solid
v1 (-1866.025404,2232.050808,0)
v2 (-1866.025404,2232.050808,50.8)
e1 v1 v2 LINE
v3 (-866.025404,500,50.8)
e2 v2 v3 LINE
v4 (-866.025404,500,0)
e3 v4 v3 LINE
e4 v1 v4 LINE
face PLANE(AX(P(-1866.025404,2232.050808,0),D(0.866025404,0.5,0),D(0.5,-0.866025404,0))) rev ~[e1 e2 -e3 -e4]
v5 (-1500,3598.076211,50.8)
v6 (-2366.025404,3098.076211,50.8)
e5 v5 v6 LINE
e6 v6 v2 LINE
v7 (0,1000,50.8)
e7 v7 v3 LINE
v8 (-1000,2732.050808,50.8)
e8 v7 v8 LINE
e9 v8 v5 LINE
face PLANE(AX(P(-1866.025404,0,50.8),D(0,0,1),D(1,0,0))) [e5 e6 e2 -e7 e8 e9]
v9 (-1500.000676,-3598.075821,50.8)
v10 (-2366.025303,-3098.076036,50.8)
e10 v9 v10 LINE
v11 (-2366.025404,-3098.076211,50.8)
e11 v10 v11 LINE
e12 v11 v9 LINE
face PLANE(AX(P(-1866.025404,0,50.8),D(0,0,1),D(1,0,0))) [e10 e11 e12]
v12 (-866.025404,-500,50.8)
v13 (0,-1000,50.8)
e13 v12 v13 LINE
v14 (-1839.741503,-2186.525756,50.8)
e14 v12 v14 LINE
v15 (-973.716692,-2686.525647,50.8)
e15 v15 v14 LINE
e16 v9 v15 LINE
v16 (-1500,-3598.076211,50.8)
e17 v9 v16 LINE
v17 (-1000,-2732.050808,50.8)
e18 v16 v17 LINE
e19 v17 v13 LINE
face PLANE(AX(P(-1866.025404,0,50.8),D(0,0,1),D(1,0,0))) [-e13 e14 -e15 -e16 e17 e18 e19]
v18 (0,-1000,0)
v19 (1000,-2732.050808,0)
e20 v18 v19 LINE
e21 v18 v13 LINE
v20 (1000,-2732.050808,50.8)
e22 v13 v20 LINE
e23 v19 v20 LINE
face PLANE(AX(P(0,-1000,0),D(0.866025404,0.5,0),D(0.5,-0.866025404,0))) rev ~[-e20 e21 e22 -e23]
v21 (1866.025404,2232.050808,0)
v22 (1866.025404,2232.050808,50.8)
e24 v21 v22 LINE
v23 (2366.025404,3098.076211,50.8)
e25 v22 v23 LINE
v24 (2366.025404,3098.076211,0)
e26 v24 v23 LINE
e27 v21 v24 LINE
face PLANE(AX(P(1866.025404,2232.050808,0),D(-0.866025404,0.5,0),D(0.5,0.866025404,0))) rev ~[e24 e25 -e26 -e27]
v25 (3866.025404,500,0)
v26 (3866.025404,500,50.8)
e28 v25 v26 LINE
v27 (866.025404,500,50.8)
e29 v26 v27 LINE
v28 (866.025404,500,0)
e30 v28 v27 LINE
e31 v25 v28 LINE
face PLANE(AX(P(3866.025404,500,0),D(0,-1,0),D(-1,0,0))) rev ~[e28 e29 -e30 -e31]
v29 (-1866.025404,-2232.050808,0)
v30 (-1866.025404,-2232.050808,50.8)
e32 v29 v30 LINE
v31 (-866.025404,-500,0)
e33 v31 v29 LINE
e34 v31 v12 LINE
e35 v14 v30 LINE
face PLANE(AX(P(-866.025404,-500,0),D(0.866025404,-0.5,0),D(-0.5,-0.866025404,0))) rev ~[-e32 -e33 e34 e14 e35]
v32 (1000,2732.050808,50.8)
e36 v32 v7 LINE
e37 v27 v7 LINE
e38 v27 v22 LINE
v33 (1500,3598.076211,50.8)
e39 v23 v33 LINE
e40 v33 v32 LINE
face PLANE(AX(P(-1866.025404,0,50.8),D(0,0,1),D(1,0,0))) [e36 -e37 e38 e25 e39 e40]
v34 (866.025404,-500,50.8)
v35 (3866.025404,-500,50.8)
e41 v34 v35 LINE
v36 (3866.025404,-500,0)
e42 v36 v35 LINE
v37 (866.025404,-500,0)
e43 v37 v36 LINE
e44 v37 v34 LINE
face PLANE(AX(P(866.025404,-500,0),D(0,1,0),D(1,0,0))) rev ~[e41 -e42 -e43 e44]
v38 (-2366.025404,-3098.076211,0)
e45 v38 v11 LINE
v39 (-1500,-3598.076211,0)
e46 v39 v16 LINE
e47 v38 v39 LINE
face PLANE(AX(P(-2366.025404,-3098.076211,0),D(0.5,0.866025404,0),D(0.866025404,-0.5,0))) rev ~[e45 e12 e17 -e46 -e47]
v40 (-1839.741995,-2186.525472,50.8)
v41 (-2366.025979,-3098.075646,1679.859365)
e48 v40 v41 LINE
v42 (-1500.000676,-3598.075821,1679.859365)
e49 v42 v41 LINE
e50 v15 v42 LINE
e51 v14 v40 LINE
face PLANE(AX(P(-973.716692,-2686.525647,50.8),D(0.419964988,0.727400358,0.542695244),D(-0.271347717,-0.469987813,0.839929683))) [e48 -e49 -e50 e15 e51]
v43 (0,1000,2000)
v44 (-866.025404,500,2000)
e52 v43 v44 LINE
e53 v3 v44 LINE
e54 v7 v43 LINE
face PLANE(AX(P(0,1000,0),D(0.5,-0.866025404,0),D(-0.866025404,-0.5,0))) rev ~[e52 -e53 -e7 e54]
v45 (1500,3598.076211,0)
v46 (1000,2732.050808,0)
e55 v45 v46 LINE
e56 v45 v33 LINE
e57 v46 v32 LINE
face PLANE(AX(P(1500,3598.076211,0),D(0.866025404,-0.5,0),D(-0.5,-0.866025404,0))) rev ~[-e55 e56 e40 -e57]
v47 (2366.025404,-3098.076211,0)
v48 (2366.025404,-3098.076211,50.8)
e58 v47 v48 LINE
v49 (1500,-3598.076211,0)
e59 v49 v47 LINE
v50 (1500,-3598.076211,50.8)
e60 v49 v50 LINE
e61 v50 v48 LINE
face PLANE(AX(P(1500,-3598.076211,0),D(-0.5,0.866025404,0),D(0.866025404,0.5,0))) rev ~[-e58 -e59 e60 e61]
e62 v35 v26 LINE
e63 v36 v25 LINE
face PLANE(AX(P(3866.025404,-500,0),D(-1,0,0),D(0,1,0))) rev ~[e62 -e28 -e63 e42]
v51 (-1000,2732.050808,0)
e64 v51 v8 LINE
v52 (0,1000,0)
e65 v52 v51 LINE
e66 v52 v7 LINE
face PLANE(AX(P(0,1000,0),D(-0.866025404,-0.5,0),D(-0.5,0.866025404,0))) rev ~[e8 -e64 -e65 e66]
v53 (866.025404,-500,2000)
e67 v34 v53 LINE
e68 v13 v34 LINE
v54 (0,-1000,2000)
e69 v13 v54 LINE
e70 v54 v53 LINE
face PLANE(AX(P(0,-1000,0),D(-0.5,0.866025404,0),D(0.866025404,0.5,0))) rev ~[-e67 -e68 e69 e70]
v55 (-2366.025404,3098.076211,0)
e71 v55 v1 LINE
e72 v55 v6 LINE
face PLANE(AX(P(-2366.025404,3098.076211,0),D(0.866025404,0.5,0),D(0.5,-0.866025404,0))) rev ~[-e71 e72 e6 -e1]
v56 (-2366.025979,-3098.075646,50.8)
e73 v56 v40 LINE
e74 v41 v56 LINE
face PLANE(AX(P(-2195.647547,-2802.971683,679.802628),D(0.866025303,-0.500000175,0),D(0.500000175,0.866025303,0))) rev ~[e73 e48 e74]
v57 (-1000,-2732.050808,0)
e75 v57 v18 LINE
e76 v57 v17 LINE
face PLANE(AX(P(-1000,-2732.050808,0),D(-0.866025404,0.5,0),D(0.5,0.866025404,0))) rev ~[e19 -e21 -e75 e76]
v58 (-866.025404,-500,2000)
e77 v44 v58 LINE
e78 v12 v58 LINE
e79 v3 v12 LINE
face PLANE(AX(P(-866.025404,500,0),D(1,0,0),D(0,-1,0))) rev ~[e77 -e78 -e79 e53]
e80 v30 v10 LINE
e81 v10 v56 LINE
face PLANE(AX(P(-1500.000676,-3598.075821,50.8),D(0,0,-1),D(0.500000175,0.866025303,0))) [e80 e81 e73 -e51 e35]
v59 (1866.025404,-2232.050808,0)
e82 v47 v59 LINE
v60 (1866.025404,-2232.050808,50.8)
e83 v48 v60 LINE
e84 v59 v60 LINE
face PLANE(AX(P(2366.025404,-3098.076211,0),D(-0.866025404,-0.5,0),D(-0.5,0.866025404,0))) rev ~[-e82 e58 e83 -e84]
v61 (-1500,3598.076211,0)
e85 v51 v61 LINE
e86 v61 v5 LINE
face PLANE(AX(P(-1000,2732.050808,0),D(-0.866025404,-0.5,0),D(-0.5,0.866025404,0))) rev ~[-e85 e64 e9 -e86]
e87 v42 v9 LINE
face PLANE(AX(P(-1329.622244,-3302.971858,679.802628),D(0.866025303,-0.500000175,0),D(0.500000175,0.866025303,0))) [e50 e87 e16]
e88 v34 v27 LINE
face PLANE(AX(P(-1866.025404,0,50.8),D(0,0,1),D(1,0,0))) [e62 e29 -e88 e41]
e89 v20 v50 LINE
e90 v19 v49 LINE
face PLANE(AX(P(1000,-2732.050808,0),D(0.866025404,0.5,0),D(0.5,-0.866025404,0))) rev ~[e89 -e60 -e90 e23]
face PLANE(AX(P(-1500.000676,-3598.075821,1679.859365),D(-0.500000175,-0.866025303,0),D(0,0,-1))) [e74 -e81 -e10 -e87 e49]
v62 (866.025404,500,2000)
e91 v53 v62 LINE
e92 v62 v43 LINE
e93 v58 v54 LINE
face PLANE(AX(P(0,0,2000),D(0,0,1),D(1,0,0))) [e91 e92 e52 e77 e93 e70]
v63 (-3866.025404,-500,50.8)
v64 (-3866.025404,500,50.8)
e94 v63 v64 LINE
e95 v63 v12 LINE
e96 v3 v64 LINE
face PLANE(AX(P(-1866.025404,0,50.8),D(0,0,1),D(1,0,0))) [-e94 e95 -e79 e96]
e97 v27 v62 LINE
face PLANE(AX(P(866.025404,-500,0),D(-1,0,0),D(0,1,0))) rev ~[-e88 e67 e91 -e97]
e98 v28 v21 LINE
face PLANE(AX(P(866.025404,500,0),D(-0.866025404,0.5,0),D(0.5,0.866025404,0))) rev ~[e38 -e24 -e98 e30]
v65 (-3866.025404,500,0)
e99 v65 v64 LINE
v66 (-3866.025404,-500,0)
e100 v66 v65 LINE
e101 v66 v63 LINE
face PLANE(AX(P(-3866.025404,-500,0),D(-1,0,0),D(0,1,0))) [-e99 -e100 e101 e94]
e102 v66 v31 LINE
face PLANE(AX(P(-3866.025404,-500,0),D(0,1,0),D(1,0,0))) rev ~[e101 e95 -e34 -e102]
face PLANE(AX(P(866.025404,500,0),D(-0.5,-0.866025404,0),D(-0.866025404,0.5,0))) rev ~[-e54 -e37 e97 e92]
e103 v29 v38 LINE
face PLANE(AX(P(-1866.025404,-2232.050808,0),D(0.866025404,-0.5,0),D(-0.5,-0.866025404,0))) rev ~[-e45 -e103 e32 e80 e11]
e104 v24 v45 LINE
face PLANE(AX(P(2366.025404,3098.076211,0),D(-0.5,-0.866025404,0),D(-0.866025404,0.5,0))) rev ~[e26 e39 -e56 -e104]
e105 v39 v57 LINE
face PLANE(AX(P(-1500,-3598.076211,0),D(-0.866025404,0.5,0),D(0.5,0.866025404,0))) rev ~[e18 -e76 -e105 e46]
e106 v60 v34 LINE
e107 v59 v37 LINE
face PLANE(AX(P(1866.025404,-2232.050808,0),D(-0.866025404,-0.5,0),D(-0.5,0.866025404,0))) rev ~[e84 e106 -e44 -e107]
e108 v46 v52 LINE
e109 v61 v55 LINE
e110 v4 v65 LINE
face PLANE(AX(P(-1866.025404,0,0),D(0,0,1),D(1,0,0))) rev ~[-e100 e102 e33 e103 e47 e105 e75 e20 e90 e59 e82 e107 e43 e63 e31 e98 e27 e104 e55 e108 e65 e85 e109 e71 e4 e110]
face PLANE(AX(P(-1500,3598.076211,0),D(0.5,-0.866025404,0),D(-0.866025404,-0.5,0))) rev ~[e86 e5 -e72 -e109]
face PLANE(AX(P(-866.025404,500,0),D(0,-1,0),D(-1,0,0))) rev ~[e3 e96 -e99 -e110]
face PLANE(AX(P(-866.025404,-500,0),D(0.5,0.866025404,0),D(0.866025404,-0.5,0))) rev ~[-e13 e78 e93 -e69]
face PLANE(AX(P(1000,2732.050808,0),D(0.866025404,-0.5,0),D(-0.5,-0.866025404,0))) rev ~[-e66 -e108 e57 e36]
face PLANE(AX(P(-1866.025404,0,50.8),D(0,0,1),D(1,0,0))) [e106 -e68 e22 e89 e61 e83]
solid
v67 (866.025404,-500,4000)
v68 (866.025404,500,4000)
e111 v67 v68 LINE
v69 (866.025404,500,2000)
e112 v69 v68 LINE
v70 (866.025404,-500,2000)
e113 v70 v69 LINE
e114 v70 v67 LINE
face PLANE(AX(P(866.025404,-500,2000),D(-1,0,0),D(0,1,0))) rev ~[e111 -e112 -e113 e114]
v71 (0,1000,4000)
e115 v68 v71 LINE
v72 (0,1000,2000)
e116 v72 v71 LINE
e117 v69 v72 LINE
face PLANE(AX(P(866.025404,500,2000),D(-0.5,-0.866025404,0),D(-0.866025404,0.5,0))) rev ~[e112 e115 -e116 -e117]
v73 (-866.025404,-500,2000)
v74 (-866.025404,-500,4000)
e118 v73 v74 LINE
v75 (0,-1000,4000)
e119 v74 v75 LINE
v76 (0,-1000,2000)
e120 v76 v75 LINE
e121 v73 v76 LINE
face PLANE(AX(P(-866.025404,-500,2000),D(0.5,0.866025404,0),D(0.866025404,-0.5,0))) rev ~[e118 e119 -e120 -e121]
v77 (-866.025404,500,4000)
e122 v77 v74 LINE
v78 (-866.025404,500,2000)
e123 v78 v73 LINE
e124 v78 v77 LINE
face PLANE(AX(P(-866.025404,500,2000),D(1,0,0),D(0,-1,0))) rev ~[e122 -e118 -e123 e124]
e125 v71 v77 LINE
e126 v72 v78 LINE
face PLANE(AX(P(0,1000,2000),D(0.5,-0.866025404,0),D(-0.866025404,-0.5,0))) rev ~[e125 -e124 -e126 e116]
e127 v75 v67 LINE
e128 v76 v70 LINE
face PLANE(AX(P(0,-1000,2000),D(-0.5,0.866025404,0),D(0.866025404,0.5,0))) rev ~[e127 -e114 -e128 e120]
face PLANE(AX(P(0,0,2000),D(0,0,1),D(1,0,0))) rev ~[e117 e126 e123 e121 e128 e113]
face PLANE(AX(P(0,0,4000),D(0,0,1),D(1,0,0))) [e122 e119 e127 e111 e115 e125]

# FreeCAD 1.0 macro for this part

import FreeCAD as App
import Part
import Sketcher
Q = App.Units.Quantity


def add_polygon(sketch, points):
    """Adds a closed chain of lines whose ends are joined by coincident constraints."""
    first, n = sketch.GeometryCount, len(points)
    for a, b in zip(points, points[1:] + points[:1]):
        sketch.addGeometry(Part.LineSegment(App.Vector(*a, 0), App.Vector(*b, 0)), False)
    for i in range(n):
        sketch.addConstraint(Sketcher.Constraint("Coincident", first + i, 2, first + (i + 1) % n, 1))

doc = App.newDocument("Part")
body = doc.addObject("PartDesign::Body", "Body")

# Sketch on XY plane
sketch1 = doc.addObject("Sketcher::SketchObject", "Sketch")
body.addObject(sketch1)
sketch1.AttachmentSupport = (doc.XY_Plane, [""])
sketch1.MapMode = "FlatFace"
add_polygon(sketch1, [(-866, 500), (-866, -500), (0, -1000), (866, -500), (866, 500), (0, 1000)])  # lines 0-5
sketch1.addConstraint([
    Sketcher.Constraint("Vertical", 0),
    Sketcher.Constraint("Vertical", 3),
    Sketcher.Constraint("Symmetric", 0, 2, 3, 2, -1, 1),
    Sketcher.Constraint("Symmetric", 1, 2, 4, 2, -1, 1),
    Sketcher.Constraint("PointOnObject", 1, 2, -2),
    Sketcher.Constraint("Parallel", 2, 5),
    Sketcher.Constraint("Horizontal", 0, 2, 2, 2),
    Sketcher.Constraint("DistanceY", 0, 2, 0, 1, Q("1000 mm")),
    Sketcher.Constraint("Angle", 1, Q("-30 deg")),
    Sketcher.Constraint("Distance", 1, Q("1000 mm")),
])
pad1 = doc.addObject("PartDesign::Pad", "Pad")
body.addObject(pad1)
pad1.Profile = sketch1
pad1.Length = 2000

# Sketch on XY plane
sketch2 = doc.addObject("Sketcher::SketchObject", "Sketch001")
body.addObject(sketch2)
sketch2.AttachmentSupport = (doc.XY_Plane, [""])
sketch2.MapMode = "FlatFace"
add_polygon(sketch2, [(-866, -500), (-1866, -2232), (-2366, -3098), (-1500, -3598), (-1000, -2732), (0, -1000), (1000, -2732), (1500, -3598), (2366, -3098), (1866, -2232), (866, -500), (3866, -500), (3866, 500), (866, 500), (1866, 2232), (2366, 3098), (1500, 3598), (1000, 2732), (0, 1000), (-1000, 2732), (-1500, 3598), (-2366, 3098), (-1866, 2232), (-866, 500), (-3866, 500), (-3866, -500)])  # lines 0-25
sketch2.addConstraint([
    Sketcher.Constraint("Horizontal", 10),
    Sketcher.Constraint("Vertical", 11),
    Sketcher.Constraint("Horizontal", 12),
    Sketcher.Constraint("Horizontal", 23),
    Sketcher.Constraint("Vertical", 24),
    Sketcher.Constraint("Horizontal", 25),
    Sketcher.Constraint("Symmetric", 0, 2, 13, 2, -1, 1),
    Sketcher.Constraint("Symmetric", 1, 2, 14, 2, -1, 1),
    Sketcher.Constraint("Symmetric", 2, 2, 15, 2, -1, 1),
    Sketcher.Constraint("Symmetric", 3, 2, 16, 2, -1, 1),
    Sketcher.Constraint("Symmetric", 4, 2, 17, 2, -1, 1),
    Sketcher.Constraint("Symmetric", 5, 2, 18, 2, -1, 1),
    Sketcher.Constraint("Symmetric", 6, 2, 19, 2, -1, 1),
    Sketcher.Constraint("Symmetric", 7, 2, 20, 2, -1, 1),
    Sketcher.Constraint("Symmetric", 8, 2, 21, 2, -1, 1),
    Sketcher.Constraint("Symmetric", 9, 2, 22, 2, -1, 1),
    Sketcher.Constraint("Symmetric", 11, 2, 24, 2, -1, 1),
    Sketcher.Constraint("Symmetric", 3, 2, 5, 2, -2),
    Sketcher.Constraint("Symmetric", 2, 2, 6, 2, -2),
    Sketcher.Constraint("Symmetric", 1, 2, 7, 2, -2),
    Sketcher.Constraint("Symmetric", 0, 2, 8, 2, -2),
    Sketcher.Constraint("Symmetric", 12, 2, 22, 2, -2),
    Sketcher.Constraint("PointOnObject", 4, 2, -2),
    Sketcher.Constraint("Parallel", 0, 1),
    Sketcher.Constraint("Perpendicular", 1, 2),
    Sketcher.Constraint("Perpendicular", 2, 3),
    Sketcher.Constraint("Parallel", 3, 4),
    Sketcher.Constraint("Parallel", 8, 9),
    Sketcher.Constraint("Equal", 1, 2),
    Sketcher.Constraint("Equal", 2, 3),
    Sketcher.Constraint("Equal", 0, 4),
    Sketcher.Constraint("DistanceX", 10, 1, 10, 2, Q("3000 mm")),
    Sketcher.Constraint("DistanceY", 11, 1, 11, 2, Q("1000 mm")),
    Sketcher.Constraint("Angle", 0, Q("-120 deg")),
    Sketcher.Constraint("Distance", 0, Q("2000 mm")),
    Sketcher.Constraint("Distance", 1, Q("999.999999 mm")),
])
pad2 = doc.addObject("PartDesign::Pad", "Pad001")
body.addObject(pad2)
pad2.Profile = sketch2
pad2.Length = 50.8

# Sketch on an angled plane
sketch3 = doc.addObject("Sketcher::SketchObject", "Sketch002")
body.addObject(sketch3)
sketch3.Placement = App.Placement(App.Vector(433.012702, -250, 0), App.Rotation(App.Vector(0.500000175, 0.866025303, 0), App.Vector(0, 0, 1), App.Vector(0.866025303, -0.500000175, 0), "ZXY"))
add_polygon(sketch3, [(-3866, 1680), (-3866, 51), (-2813, 51)])  # lines 0-2
sketch3.addConstraint([
    Sketcher.Constraint("Vertical", 0),
    Sketcher.Constraint("Horizontal", 1),
    Sketcher.Constraint("DistanceY", -1, 1, 0, 2, Q("50.8 mm")),
    Sketcher.Constraint("DistanceX", 1, 1, 1, 2, Q("1052.5676 mm")),
    Sketcher.Constraint("DistanceY", 0, 2, 0, 1, Q("1629.059366 mm")),
    Sketcher.Constraint("DistanceX", 0, 2, -1, 1, Q("3866.025406 mm")),
])
pad3 = doc.addObject("PartDesign::Pad", "Pad002")
body.addObject(pad3)
pad3.Profile = sketch3
pad3.Length = 1000
pad3.Reversed = True
body2 = doc.addObject("PartDesign::Body", "Body001")

# Sketch on XY plane
sketch4 = doc.addObject("Sketcher::SketchObject", "Sketch003")
body2.addObject(sketch4)
sketch4.AttachmentSupport = (doc.getObject("XY_Plane001"), [""])
sketch4.MapMode = "FlatFace"
sketch4.AttachmentOffset = App.Placement(App.Vector(0, 0, 2000), App.Rotation())
add_polygon(sketch4, [(-866, 500), (-866, -500), (0, -1000), (866, -500), (866, 500), (0, 1000)])  # lines 0-5
sketch4.addConstraint([
    Sketcher.Constraint("Vertical", 0),
    Sketcher.Constraint("Vertical", 3),
    Sketcher.Constraint("Symmetric", 0, 2, 3, 2, -1, 1),
    Sketcher.Constraint("Symmetric", 1, 2, 4, 2, -1, 1),
    Sketcher.Constraint("PointOnObject", 1, 2, -2),
    Sketcher.Constraint("Parallel", 2, 5),
    Sketcher.Constraint("Horizontal", 0, 2, 2, 2),
    Sketcher.Constraint("DistanceY", 0, 2, 0, 1, Q("1000 mm")),
    Sketcher.Constraint("Angle", 1, Q("-30 deg")),
    Sketcher.Constraint("Distance", 1, Q("1000 mm")),
])
pad4 = doc.addObject("PartDesign::Pad", "Pad003")
body2.addObject(pad4)
pad4.Profile = sketch4
pad4.Length = 2000

doc.recompute()
